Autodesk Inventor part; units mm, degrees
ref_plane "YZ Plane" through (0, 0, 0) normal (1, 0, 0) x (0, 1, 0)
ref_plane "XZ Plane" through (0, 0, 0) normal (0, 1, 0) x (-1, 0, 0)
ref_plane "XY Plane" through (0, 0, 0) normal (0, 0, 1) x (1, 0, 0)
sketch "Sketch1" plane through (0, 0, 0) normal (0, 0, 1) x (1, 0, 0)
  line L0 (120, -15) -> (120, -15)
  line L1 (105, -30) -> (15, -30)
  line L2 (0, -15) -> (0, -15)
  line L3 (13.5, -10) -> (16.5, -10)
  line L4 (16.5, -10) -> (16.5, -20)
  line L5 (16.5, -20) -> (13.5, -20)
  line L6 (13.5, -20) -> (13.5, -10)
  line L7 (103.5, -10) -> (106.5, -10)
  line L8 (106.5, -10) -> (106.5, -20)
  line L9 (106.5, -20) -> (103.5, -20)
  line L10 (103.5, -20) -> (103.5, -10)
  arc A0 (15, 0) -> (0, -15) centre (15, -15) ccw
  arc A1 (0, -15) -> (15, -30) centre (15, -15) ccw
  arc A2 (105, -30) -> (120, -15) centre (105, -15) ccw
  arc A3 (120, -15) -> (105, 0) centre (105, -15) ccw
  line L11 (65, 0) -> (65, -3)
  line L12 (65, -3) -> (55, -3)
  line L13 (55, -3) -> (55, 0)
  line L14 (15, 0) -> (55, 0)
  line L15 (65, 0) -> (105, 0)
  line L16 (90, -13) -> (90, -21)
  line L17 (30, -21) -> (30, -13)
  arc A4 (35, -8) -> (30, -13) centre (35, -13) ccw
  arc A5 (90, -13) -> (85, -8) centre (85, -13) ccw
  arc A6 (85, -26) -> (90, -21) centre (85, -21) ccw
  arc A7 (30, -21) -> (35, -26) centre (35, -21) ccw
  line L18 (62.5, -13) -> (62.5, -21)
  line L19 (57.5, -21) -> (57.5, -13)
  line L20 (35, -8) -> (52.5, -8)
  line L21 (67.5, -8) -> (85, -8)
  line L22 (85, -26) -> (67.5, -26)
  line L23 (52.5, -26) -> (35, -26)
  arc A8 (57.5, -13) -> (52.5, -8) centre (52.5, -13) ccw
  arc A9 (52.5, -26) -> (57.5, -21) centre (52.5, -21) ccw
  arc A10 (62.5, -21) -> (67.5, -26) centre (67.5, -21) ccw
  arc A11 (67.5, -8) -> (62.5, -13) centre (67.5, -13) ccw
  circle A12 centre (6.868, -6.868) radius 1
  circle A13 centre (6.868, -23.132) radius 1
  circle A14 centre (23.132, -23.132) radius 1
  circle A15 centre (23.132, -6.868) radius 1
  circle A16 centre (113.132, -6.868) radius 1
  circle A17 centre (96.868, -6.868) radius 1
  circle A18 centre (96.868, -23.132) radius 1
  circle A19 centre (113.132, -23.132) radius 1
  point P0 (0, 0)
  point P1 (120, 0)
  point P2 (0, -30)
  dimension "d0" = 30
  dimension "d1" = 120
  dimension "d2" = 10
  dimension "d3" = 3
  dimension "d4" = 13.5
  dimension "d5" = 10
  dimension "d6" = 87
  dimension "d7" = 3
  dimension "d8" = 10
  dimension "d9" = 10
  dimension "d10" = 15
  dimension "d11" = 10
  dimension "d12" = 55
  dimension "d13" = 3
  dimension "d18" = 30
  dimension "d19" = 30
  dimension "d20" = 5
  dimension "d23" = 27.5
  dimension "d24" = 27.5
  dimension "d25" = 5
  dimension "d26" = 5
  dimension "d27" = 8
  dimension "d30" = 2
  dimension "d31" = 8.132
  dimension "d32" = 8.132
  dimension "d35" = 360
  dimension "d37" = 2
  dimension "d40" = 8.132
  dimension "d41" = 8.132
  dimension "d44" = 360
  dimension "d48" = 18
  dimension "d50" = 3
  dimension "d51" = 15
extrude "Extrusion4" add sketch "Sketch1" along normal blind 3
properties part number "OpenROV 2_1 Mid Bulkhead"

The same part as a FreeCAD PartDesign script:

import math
import FreeCAD as App
import Part
import Sketcher
Q = App.Units.Quantity


def add_polygon(sketch, points):
    """Adds a closed chain of lines whose ends are joined by coincident constraints."""
    first, n = sketch.GeometryCount, len(points)
    for a, b in zip(points, points[1:] + points[:1]):
        sketch.addGeometry(Part.LineSegment(App.Vector(*a, 0), App.Vector(*b, 0)), False)
    for i in range(n):
        sketch.addConstraint(Sketcher.Constraint("Coincident", first + i, 2, first + (i + 1) % n, 1))

doc = App.newDocument("Part")
body = doc.addObject("PartDesign::Body", "Body")

# Sketch on XY plane
sketch1 = doc.addObject("Sketcher::SketchObject", "Sketch")
body.addObject(sketch1)
sketch1.AttachmentSupport = (doc.XY_Plane, [""])
sketch1.MapMode = "FlatFace"
sketch1.addGeometry(Part.LineSegment(App.Vector(15, -30, 0), App.Vector(105, -30, 0)), False)  # 0
sketch1.addGeometry(Part.ArcOfCircle(Part.Circle(App.Vector(105, -15, 0), App.Vector(0, 0, 1), 15), math.radians(-90), math.radians(90)), False)  # 1
sketch1.addGeometry(Part.LineSegment(App.Vector(105, 0, 0), App.Vector(65, 0, 0)), False)  # 2
sketch1.addGeometry(Part.LineSegment(App.Vector(65, 0, 0), App.Vector(65, -3, 0)), False)  # 3
sketch1.addGeometry(Part.LineSegment(App.Vector(65, -3, 0), App.Vector(55, -3, 0)), False)  # 4
sketch1.addGeometry(Part.LineSegment(App.Vector(55, -3, 0), App.Vector(55, 0, 0)), False)  # 5
sketch1.addGeometry(Part.LineSegment(App.Vector(55, 0, 0), App.Vector(15, 0, 0)), False)  # 6
sketch1.addGeometry(Part.ArcOfCircle(Part.Circle(App.Vector(15, -15, 0), App.Vector(0, 0, 1), 15), math.radians(90), math.radians(270)), False)  # 7
sketch1.addGeometry(Part.Circle(App.Vector(6.9, -23.1, 0), App.Vector(0, 0, 1), 1), False)  # 8
sketch1.addGeometry(Part.Circle(App.Vector(23.1, -23.1, 0), App.Vector(0, 0, 1), 1), False)  # 9
sketch1.addGeometry(Part.ArcOfCircle(Part.Circle(App.Vector(35, -21, 0), App.Vector(0, 0, 1), 5), math.radians(180), math.radians(270)), False)  # 10
sketch1.addGeometry(Part.LineSegment(App.Vector(30, -21, 0), App.Vector(30, -13, 0)), False)  # 11
sketch1.addGeometry(Part.ArcOfCircle(Part.Circle(App.Vector(35, -13, 0), App.Vector(0, 0, 1), 5), math.radians(90), math.radians(180)), False)  # 12
sketch1.addGeometry(Part.LineSegment(App.Vector(35, -8, 0), App.Vector(52.5, -8, 0)), False)  # 13
sketch1.addGeometry(Part.ArcOfCircle(Part.Circle(App.Vector(52.5, -13, 0), App.Vector(0, 0, 1), 5), math.radians(0), math.radians(90)), False)  # 14
sketch1.addGeometry(Part.LineSegment(App.Vector(57.5, -13, 0), App.Vector(57.5, -21, 0)), False)  # 15
sketch1.addGeometry(Part.ArcOfCircle(Part.Circle(App.Vector(52.5, -21, 0), App.Vector(0, 0, 1), 5), math.radians(-90), math.radians(0)), False)  # 16
sketch1.addGeometry(Part.LineSegment(App.Vector(52.5, -26, 0), App.Vector(35, -26, 0)), False)  # 17
sketch1.addGeometry(Part.Circle(App.Vector(96.9, -23.1, 0), App.Vector(0, 0, 1), 1), False)  # 18
sketch1.addGeometry(Part.Circle(App.Vector(113.1, -23.1, 0), App.Vector(0, 0, 1), 1), False)  # 19
sketch1.addGeometry(Part.ArcOfCircle(Part.Circle(App.Vector(85, -13, 0), App.Vector(0, 0, 1), 5), math.radians(0), math.radians(90)), False)  # 20
sketch1.addGeometry(Part.LineSegment(App.Vector(90, -13, 0), App.Vector(90, -21, 0)), False)  # 21
sketch1.addGeometry(Part.ArcOfCircle(Part.Circle(App.Vector(85, -21, 0), App.Vector(0, 0, 1), 5), math.radians(-90), math.radians(0)), False)  # 22
sketch1.addGeometry(Part.LineSegment(App.Vector(85, -26, 0), App.Vector(67.5, -26, 0)), False)  # 23
sketch1.addGeometry(Part.ArcOfCircle(Part.Circle(App.Vector(67.5, -21, 0), App.Vector(0, 0, 1), 5), math.radians(180), math.radians(270)), False)  # 24
sketch1.addGeometry(Part.LineSegment(App.Vector(62.5, -21, 0), App.Vector(62.5, -13, 0)), False)  # 25
sketch1.addGeometry(Part.ArcOfCircle(Part.Circle(App.Vector(67.5, -13, 0), App.Vector(0, 0, 1), 5), math.radians(90), math.radians(180)), False)  # 26
sketch1.addGeometry(Part.LineSegment(App.Vector(67.5, -8, 0), App.Vector(85, -8, 0)), False)  # 27
add_polygon(sketch1, [(13.5, -20), (13.5, -10), (16.5, -10), (16.5, -20)])  # lines 28-31
sketch1.addGeometry(Part.Circle(App.Vector(6.9, -6.9, 0), App.Vector(0, 0, 1), 1), False)  # 32
sketch1.addGeometry(Part.Circle(App.Vector(23.1, -6.9, 0), App.Vector(0, 0, 1), 1), False)  # 33
add_polygon(sketch1, [(103.5, -20), (103.5, -10), (106.5, -10), (106.5, -20)])  # lines 34-37
sketch1.addGeometry(Part.Circle(App.Vector(96.9, -6.9, 0), App.Vector(0, 0, 1), 1), False)  # 38
sketch1.addGeometry(Part.Circle(App.Vector(113.1, -6.9, 0), App.Vector(0, 0, 1), 1), False)  # 39
sketch1.addConstraint(Sketcher.Constraint("Tangent", 0, 2, 1, 1))
sketch1.addConstraint(Sketcher.Constraint("Tangent", 1, 2, 2, 1))
sketch1.addConstraint(Sketcher.Constraint("Coincident", 2, 2, 3, 1))
sketch1.addConstraint(Sketcher.Constraint("Coincident", 3, 2, 4, 1))
sketch1.addConstraint(Sketcher.Constraint("Coincident", 4, 2, 5, 1))
sketch1.addConstraint(Sketcher.Constraint("Coincident", 5, 2, 6, 1))
sketch1.addConstraint(Sketcher.Constraint("Tangent", 6, 2, 7, 1))
sketch1.addConstraint(Sketcher.Constraint("Tangent", 7, 2, 0, 1))
sketch1.addConstraint(Sketcher.Constraint("Tangent", 10, 1, 11, 1))
sketch1.addConstraint(Sketcher.Constraint("Tangent", 11, 2, 12, 2))
sketch1.addConstraint(Sketcher.Constraint("Tangent", 12, 1, 13, 1))
sketch1.addConstraint(Sketcher.Constraint("Tangent", 13, 2, 14, 2))
sketch1.addConstraint(Sketcher.Constraint("Tangent", 14, 1, 15, 1))
sketch1.addConstraint(Sketcher.Constraint("Tangent", 15, 2, 16, 2))
sketch1.addConstraint(Sketcher.Constraint("Tangent", 16, 1, 17, 1))
sketch1.addConstraint(Sketcher.Constraint("Tangent", 17, 2, 10, 2))
sketch1.addConstraint(Sketcher.Constraint("Tangent", 20, 1, 21, 1))
sketch1.addConstraint(Sketcher.Constraint("Tangent", 21, 2, 22, 2))
sketch1.addConstraint(Sketcher.Constraint("Tangent", 22, 1, 23, 1))
sketch1.addConstraint(Sketcher.Constraint("Tangent", 23, 2, 24, 2))
sketch1.addConstraint(Sketcher.Constraint("Tangent", 24, 1, 25, 1))
sketch1.addConstraint(Sketcher.Constraint("Tangent", 25, 2, 26, 2))
sketch1.addConstraint(Sketcher.Constraint("Tangent", 26, 1, 27, 1))
sketch1.addConstraint(Sketcher.Constraint("Tangent", 27, 2, 20, 2))
sketch1.addConstraint(Sketcher.Constraint("Horizontal", 0))
sketch1.addConstraint(Sketcher.Constraint("Horizontal", 2))
sketch1.addConstraint(Sketcher.Constraint("Vertical", 3))
sketch1.addConstraint(Sketcher.Constraint("Horizontal", 4))
sketch1.addConstraint(Sketcher.Constraint("Vertical", 5))
sketch1.addConstraint(Sketcher.Constraint("Horizontal", 6))
sketch1.addConstraint(Sketcher.Constraint("Vertical", 11))
sketch1.addConstraint(Sketcher.Constraint("Horizontal", 13))
sketch1.addConstraint(Sketcher.Constraint("Vertical", 15))
sketch1.addConstraint(Sketcher.Constraint("Horizontal", 17))
sketch1.addConstraint(Sketcher.Constraint("Vertical", 21))
sketch1.addConstraint(Sketcher.Constraint("Horizontal", 23))
sketch1.addConstraint(Sketcher.Constraint("Vertical", 25))
sketch1.addConstraint(Sketcher.Constraint("Horizontal", 27))
sketch1.addConstraint(Sketcher.Constraint("Vertical", 28))
sketch1.addConstraint(Sketcher.Constraint("Horizontal", 29))
sketch1.addConstraint(Sketcher.Constraint("Vertical", 30))
sketch1.addConstraint(Sketcher.Constraint("Horizontal", 31))
sketch1.addConstraint(Sketcher.Constraint("Vertical", 34))
sketch1.addConstraint(Sketcher.Constraint("Horizontal", 35))
sketch1.addConstraint(Sketcher.Constraint("Vertical", 36))
sketch1.addConstraint(Sketcher.Constraint("Horizontal", 37))
sketch1.addConstraint(Sketcher.Constraint("Equal", 1, 7))
sketch1.addConstraint(Sketcher.Constraint("Equal", 8, 9))
sketch1.addConstraint(Sketcher.Constraint("Equal", 10, 12))
sketch1.addConstraint(Sketcher.Constraint("Equal", 12, 14))
sketch1.addConstraint(Sketcher.Constraint("Equal", 14, 16))
sketch1.addConstraint(Sketcher.Constraint("Equal", 9, 18))
sketch1.addConstraint(Sketcher.Constraint("Equal", 18, 19))
sketch1.addConstraint(Sketcher.Constraint("Equal", 16, 20))
sketch1.addConstraint(Sketcher.Constraint("Equal", 20, 22))
sketch1.addConstraint(Sketcher.Constraint("Equal", 22, 24))
sketch1.addConstraint(Sketcher.Constraint("Equal", 24, 26))
sketch1.addConstraint(Sketcher.Constraint("Equal", 19, 32))
sketch1.addConstraint(Sketcher.Constraint("Equal", 32, 33))
sketch1.addConstraint(Sketcher.Constraint("Equal", 33, 38))
sketch1.addConstraint(Sketcher.Constraint("Equal", 38, 39))
sketch1.addConstraint(Sketcher.Constraint("PointOnObject", 1, 2, -1))
sketch1.addConstraint(Sketcher.Constraint("Horizontal", 8, 3, 9, 3))
sketch1.addConstraint(Sketcher.Constraint("Horizontal", 9, 3, 18, 3))
sketch1.addConstraint(Sketcher.Constraint("Horizontal", 18, 3, 19, 3))
sketch1.addConstraint(Sketcher.Constraint("Horizontal", 14, 3, 20, 3))
sketch1.addConstraint(Sketcher.Constraint("Horizontal", 16, 3, 22, 3))
sketch1.addConstraint(Sketcher.Constraint("Horizontal", 32, 3, 33, 3))
sketch1.addConstraint(Sketcher.Constraint("Horizontal", 33, 3, 38, 3))
sketch1.addConstraint(Sketcher.Constraint("Horizontal", 38, 3, 39, 3))
sketch1.addConstraint(Sketcher.Constraint("Horizontal", 29, 2, 34, 2))
sketch1.addConstraint(Sketcher.Constraint("Horizontal", 31, 2, 36, 2))
sketch1.addConstraint(Sketcher.Constraint("Vertical", 8, 3, 32, 3))
sketch1.addConstraint(Sketcher.Constraint("Vertical", 9, 3, 33, 3))
sketch1.addConstraint(Sketcher.Constraint("Vertical", 18, 3, 38, 3))
sketch1.addConstraint(Sketcher.Constraint("Vertical", 19, 3, 39, 3))
sketch1.addConstraint(Sketcher.Constraint("Equal", 2, 6))
sketch1.addConstraint(Sketcher.Constraint("Equal", 17, 23))
sketch1.addConstraint(Sketcher.Constraint("Equal", 31, 35))
sketch1.addConstraint(Sketcher.Constraint("Equal", 37, 3))
sketch1.addConstraint(Sketcher.Constraint("Equal", 4, 28))
sketch1.addConstraint(Sketcher.Constraint("Diameter", 8, Q("2 mm")))
sketch1.addConstraint(Sketcher.Constraint("Radius", 1, Q("15 mm")))
sketch1.addConstraint(Sketcher.Constraint("Radius", 10, Q("5 mm")))
sketch1.addConstraint(Sketcher.Constraint("DistanceX", 4, 2, 4, 1, Q("10 mm")))
sketch1.addConstraint(Sketcher.Constraint("DistanceX", 29, 1, 29, 2, Q("3 mm")))
sketch1.addConstraint(Sketcher.Constraint("DistanceY", 11, 1, 11, 2, Q("8 mm")))
sketch1.addConstraint(Sketcher.Constraint("DistanceX", -1, 1, 7, 3, Q("15 mm")))
sketch1.addConstraint(Sketcher.Constraint("DistanceX", -1, 1, 4, 2, Q("55 mm")))
sketch1.addConstraint(Sketcher.Constraint("DistanceX", -1, 1, 10, 1, Q("30 mm")))
sketch1.addConstraint(Sketcher.Constraint("DistanceY", 12, 1, -1, 1, Q("8 mm")))
sketch1.addConstraint(Sketcher.Constraint("DistanceY", 28, 2, -1, 1, Q("10 mm")))
sketch1.addConstraint(Sketcher.Constraint("DistanceX", 16, 3, 24, 3, Q("15 mm")))
sketch1.addConstraint(Sketcher.Constraint("DistanceX", 20, 1, 1, 3, Q("15 mm")))
sketch1.addConstraint(Sketcher.Constraint("DistanceX", -1, 1, 28, 2, Q("13.5 mm")))
sketch1.addConstraint(Sketcher.Constraint("DistanceX", 20, 1, 34, 2, Q("13.5 mm")))
sketch1.addConstraint(Sketcher.Constraint("DistanceX", 8, 3, 7, 3, Q("8.132 mm")))
sketch1.addConstraint(Sketcher.Constraint("DistanceY", 8, 3, 7, 3, Q("8.132 mm")))
sketch1.addConstraint(Sketcher.Constraint("DistanceX", 7, 3, 9, 3, Q("8.132 mm")))
sketch1.addConstraint(Sketcher.Constraint("DistanceX", 18, 3, 1, 3, Q("8.132 mm")))
sketch1.addConstraint(Sketcher.Constraint("DistanceX", 1, 3, 19, 3, Q("8.132 mm")))
sketch1.addConstraint(Sketcher.Constraint("DistanceY", 7, 3, 32, 3, Q("8.132 mm")))
pad1 = doc.addObject("PartDesign::Pad", "Pad")
body.addObject(pad1)
pad1.Profile = sketch1
pad1.Length = 3

doc.recompute()
